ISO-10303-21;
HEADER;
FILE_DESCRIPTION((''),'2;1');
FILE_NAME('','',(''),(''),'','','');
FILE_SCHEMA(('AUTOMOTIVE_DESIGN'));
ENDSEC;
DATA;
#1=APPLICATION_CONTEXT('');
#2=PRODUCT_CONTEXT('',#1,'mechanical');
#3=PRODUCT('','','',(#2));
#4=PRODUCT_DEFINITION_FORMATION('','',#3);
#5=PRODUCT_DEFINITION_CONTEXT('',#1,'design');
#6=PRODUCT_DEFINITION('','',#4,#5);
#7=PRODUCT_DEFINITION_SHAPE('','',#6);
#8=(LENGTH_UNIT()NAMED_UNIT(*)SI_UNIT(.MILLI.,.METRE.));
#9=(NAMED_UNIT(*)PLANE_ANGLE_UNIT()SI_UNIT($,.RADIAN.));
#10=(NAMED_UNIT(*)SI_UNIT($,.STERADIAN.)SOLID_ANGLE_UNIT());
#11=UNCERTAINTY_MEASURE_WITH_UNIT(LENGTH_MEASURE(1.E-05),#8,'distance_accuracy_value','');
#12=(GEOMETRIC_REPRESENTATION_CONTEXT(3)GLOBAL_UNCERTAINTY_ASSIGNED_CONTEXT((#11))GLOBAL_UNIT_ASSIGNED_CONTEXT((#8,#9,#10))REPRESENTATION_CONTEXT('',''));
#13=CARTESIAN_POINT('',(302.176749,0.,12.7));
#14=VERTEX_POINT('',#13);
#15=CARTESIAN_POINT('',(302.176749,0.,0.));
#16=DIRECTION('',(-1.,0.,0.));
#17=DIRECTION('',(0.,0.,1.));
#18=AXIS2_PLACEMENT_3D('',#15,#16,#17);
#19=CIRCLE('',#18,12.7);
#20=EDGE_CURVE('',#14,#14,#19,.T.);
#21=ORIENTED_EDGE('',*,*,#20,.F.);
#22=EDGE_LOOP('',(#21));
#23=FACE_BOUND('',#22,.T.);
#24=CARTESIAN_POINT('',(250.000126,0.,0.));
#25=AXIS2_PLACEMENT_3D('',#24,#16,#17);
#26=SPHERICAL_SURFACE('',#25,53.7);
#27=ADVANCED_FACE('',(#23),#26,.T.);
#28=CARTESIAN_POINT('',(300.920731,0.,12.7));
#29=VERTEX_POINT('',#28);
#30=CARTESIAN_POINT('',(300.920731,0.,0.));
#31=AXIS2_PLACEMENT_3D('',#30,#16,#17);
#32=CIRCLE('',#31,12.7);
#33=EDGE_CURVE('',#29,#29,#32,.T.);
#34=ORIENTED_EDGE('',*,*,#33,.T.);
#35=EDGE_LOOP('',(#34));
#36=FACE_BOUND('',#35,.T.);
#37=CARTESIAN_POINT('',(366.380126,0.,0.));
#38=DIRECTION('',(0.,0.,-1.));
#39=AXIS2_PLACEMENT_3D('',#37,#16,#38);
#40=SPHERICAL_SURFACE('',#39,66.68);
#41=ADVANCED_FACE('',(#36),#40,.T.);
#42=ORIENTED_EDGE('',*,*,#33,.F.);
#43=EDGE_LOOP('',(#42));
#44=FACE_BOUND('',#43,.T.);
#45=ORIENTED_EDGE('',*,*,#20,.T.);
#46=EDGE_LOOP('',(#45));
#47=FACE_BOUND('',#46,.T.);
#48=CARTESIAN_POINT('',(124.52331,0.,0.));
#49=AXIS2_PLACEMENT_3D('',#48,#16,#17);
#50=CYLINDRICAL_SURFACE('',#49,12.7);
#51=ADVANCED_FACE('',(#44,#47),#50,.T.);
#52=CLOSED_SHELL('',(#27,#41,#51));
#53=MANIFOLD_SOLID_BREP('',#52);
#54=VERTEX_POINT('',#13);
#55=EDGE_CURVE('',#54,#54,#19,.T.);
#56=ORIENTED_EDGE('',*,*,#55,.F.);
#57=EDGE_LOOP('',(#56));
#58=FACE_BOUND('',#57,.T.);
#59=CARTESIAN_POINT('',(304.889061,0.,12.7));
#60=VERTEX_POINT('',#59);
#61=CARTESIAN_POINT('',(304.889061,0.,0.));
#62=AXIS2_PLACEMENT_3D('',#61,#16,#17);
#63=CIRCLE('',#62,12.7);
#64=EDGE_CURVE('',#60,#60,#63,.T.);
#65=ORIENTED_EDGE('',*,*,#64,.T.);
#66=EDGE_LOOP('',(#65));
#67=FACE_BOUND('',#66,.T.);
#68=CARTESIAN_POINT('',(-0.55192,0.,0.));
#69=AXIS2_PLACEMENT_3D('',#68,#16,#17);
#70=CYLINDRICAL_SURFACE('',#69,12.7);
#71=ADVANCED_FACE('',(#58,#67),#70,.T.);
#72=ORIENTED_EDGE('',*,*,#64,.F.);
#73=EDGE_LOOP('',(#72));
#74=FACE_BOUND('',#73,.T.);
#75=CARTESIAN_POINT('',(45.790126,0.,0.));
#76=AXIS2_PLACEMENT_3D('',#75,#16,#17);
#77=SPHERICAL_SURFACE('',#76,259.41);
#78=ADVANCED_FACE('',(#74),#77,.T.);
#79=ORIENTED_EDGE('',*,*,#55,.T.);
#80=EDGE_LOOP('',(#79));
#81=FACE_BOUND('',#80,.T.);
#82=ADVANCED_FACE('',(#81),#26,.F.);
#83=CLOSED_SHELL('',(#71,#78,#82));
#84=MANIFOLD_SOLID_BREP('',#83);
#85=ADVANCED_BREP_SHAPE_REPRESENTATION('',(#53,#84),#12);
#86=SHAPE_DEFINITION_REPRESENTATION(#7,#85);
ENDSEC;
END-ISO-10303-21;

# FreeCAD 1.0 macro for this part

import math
import FreeCAD as App
import Part
import Sketcher

doc = App.newDocument("Part")
body = doc.addObject("PartDesign::Body", "Body")

# Sketch on XZ plane
sketch1 = body.newObject("Sketcher::SketchObject", "Sketch")
sketch1.AttachmentSupport = (doc.getObject("XZ_Plane"), [""])
sketch1.MapMode = "FlatFace"
sketch1.addGeometry(Part.ArcOfCircle(Part.Circle(App.Vector(366.380126, 0, 0), App.Vector(0, 0, 1), 66.68), math.radians(-180), math.radians(-169.020258)), False)
sketch1.addGeometry(Part.LineSegment(App.Vector(299.700126, 0, 0), App.Vector(303.700126, 0, 0)), False)
sketch1.addGeometry(Part.ArcOfCircle(Part.Circle(App.Vector(250.000126, 0, 0), App.Vector(0, 0, 1), 53.7), math.radians(-13.680004), math.radians(0)), False)
sketch1.addGeometry(Part.LineSegment(App.Vector(302.176749, -12.7, 0), App.Vector(300.920731, -12.7, 0)), False)
sketch1.addConstraint(Sketcher.Constraint("Coincident", 0, 1, 1, 1))
sketch1.addConstraint(Sketcher.Constraint("Coincident", 1, 2, 2, 2))
sketch1.addConstraint(Sketcher.Constraint("Coincident", 2, 1, 3, 1))
sketch1.addConstraint(Sketcher.Constraint("Coincident", 3, 2, 0, 2))
sketch1.addConstraint(Sketcher.Constraint("Horizontal", 1))
sketch1.addConstraint(Sketcher.Constraint("Horizontal", 3))
sketch1.addConstraint(Sketcher.Constraint("PointOnObject", 0, 3, -1))
sketch1.addConstraint(Sketcher.Constraint("PointOnObject", 2, 3, -1))
sketch1.addConstraint(Sketcher.Constraint("PointOnObject", 0, 1, -1))
sketch1.addConstraint(Sketcher.Constraint("Radius", 2, 53.7))
sketch1.addConstraint(Sketcher.Constraint("DistanceX", 1, 1, 1, 2, 4.0))
sketch1.addConstraint(Sketcher.Constraint("Radius", 0, 66.68))
sketch1.addConstraint(Sketcher.Constraint("DistanceY", 2, 1, -1, 1, 12.7))
sketch1.addConstraint(Sketcher.Constraint("DistanceX", -1, 1, 2, 1, 302.176749))
revolution = body.newObject("PartDesign::Revolution", "Revolution")
revolution.Profile = sketch1
revolution.ReferenceAxis = (sketch1, ["H_Axis"])
revolution.Angle = 360
body2 = doc.addObject("PartDesign::Body", "Body001")

# Sketch on XZ plane
sketch2 = body2.newObject("Sketcher::SketchObject", "Sketch001")
sketch2.AttachmentSupport = (doc.getObject("XZ_Plane001"), [""])
sketch2.MapMode = "FlatFace"
sketch2.addGeometry(Part.LineSegment(App.Vector(304.889061, -12.7, 0), App.Vector(302.176749, -12.7, 0)), False)
sketch2.addGeometry(Part.ArcOfCircle(Part.Circle(App.Vector(250.000126, 0, 0), App.Vector(0, 0, 1), 53.7), math.radians(-13.680004), math.radians(0)), False)
sketch2.addGeometry(Part.LineSegment(App.Vector(303.700126, 0, 0), App.Vector(305.200126, 0, 0)), False)
sketch2.addGeometry(Part.ArcOfCircle(Part.Circle(App.Vector(45.790125, 0, 0), App.Vector(0, 0, 1), 259.410001), math.radians(-2.806165), math.radians(0)), False)
sketch2.addConstraint(Sketcher.Constraint("Coincident", 0, 2, 1, 1))
sketch2.addConstraint(Sketcher.Constraint("Coincident", 1, 2, 2, 1))
sketch2.addConstraint(Sketcher.Constraint("Coincident", 2, 2, 3, 2))
sketch2.addConstraint(Sketcher.Constraint("Coincident", 3, 1, 0, 1))
sketch2.addConstraint(Sketcher.Constraint("Horizontal", 0))
sketch2.addConstraint(Sketcher.Constraint("Horizontal", 2))
sketch2.addConstraint(Sketcher.Constraint("PointOnObject", 1, 3, -1))
sketch2.addConstraint(Sketcher.Constraint("PointOnObject", 3, 3, -1))
sketch2.addConstraint(Sketcher.Constraint("PointOnObject", 1, 2, -1))
sketch2.addConstraint(Sketcher.Constraint("Radius", 1, 53.7))
sketch2.addConstraint(Sketcher.Constraint("Radius", 3, 259.410001))
sketch2.addConstraint(Sketcher.Constraint("DistanceX", 2, 1, 2, 2, 1.5))
sketch2.addConstraint(Sketcher.Constraint("DistanceY", 0, 2, -1, 1, 12.7))
sketch2.addConstraint(Sketcher.Constraint("DistanceX", -1, 1, 0, 2, 302.176749))
revolution2 = body2.newObject("PartDesign::Revolution", "Revolution001")
revolution2.Profile = sketch2
revolution2.ReferenceAxis = (sketch2, ["H_Axis"])
revolution2.Angle = 360

doc.recompute()
